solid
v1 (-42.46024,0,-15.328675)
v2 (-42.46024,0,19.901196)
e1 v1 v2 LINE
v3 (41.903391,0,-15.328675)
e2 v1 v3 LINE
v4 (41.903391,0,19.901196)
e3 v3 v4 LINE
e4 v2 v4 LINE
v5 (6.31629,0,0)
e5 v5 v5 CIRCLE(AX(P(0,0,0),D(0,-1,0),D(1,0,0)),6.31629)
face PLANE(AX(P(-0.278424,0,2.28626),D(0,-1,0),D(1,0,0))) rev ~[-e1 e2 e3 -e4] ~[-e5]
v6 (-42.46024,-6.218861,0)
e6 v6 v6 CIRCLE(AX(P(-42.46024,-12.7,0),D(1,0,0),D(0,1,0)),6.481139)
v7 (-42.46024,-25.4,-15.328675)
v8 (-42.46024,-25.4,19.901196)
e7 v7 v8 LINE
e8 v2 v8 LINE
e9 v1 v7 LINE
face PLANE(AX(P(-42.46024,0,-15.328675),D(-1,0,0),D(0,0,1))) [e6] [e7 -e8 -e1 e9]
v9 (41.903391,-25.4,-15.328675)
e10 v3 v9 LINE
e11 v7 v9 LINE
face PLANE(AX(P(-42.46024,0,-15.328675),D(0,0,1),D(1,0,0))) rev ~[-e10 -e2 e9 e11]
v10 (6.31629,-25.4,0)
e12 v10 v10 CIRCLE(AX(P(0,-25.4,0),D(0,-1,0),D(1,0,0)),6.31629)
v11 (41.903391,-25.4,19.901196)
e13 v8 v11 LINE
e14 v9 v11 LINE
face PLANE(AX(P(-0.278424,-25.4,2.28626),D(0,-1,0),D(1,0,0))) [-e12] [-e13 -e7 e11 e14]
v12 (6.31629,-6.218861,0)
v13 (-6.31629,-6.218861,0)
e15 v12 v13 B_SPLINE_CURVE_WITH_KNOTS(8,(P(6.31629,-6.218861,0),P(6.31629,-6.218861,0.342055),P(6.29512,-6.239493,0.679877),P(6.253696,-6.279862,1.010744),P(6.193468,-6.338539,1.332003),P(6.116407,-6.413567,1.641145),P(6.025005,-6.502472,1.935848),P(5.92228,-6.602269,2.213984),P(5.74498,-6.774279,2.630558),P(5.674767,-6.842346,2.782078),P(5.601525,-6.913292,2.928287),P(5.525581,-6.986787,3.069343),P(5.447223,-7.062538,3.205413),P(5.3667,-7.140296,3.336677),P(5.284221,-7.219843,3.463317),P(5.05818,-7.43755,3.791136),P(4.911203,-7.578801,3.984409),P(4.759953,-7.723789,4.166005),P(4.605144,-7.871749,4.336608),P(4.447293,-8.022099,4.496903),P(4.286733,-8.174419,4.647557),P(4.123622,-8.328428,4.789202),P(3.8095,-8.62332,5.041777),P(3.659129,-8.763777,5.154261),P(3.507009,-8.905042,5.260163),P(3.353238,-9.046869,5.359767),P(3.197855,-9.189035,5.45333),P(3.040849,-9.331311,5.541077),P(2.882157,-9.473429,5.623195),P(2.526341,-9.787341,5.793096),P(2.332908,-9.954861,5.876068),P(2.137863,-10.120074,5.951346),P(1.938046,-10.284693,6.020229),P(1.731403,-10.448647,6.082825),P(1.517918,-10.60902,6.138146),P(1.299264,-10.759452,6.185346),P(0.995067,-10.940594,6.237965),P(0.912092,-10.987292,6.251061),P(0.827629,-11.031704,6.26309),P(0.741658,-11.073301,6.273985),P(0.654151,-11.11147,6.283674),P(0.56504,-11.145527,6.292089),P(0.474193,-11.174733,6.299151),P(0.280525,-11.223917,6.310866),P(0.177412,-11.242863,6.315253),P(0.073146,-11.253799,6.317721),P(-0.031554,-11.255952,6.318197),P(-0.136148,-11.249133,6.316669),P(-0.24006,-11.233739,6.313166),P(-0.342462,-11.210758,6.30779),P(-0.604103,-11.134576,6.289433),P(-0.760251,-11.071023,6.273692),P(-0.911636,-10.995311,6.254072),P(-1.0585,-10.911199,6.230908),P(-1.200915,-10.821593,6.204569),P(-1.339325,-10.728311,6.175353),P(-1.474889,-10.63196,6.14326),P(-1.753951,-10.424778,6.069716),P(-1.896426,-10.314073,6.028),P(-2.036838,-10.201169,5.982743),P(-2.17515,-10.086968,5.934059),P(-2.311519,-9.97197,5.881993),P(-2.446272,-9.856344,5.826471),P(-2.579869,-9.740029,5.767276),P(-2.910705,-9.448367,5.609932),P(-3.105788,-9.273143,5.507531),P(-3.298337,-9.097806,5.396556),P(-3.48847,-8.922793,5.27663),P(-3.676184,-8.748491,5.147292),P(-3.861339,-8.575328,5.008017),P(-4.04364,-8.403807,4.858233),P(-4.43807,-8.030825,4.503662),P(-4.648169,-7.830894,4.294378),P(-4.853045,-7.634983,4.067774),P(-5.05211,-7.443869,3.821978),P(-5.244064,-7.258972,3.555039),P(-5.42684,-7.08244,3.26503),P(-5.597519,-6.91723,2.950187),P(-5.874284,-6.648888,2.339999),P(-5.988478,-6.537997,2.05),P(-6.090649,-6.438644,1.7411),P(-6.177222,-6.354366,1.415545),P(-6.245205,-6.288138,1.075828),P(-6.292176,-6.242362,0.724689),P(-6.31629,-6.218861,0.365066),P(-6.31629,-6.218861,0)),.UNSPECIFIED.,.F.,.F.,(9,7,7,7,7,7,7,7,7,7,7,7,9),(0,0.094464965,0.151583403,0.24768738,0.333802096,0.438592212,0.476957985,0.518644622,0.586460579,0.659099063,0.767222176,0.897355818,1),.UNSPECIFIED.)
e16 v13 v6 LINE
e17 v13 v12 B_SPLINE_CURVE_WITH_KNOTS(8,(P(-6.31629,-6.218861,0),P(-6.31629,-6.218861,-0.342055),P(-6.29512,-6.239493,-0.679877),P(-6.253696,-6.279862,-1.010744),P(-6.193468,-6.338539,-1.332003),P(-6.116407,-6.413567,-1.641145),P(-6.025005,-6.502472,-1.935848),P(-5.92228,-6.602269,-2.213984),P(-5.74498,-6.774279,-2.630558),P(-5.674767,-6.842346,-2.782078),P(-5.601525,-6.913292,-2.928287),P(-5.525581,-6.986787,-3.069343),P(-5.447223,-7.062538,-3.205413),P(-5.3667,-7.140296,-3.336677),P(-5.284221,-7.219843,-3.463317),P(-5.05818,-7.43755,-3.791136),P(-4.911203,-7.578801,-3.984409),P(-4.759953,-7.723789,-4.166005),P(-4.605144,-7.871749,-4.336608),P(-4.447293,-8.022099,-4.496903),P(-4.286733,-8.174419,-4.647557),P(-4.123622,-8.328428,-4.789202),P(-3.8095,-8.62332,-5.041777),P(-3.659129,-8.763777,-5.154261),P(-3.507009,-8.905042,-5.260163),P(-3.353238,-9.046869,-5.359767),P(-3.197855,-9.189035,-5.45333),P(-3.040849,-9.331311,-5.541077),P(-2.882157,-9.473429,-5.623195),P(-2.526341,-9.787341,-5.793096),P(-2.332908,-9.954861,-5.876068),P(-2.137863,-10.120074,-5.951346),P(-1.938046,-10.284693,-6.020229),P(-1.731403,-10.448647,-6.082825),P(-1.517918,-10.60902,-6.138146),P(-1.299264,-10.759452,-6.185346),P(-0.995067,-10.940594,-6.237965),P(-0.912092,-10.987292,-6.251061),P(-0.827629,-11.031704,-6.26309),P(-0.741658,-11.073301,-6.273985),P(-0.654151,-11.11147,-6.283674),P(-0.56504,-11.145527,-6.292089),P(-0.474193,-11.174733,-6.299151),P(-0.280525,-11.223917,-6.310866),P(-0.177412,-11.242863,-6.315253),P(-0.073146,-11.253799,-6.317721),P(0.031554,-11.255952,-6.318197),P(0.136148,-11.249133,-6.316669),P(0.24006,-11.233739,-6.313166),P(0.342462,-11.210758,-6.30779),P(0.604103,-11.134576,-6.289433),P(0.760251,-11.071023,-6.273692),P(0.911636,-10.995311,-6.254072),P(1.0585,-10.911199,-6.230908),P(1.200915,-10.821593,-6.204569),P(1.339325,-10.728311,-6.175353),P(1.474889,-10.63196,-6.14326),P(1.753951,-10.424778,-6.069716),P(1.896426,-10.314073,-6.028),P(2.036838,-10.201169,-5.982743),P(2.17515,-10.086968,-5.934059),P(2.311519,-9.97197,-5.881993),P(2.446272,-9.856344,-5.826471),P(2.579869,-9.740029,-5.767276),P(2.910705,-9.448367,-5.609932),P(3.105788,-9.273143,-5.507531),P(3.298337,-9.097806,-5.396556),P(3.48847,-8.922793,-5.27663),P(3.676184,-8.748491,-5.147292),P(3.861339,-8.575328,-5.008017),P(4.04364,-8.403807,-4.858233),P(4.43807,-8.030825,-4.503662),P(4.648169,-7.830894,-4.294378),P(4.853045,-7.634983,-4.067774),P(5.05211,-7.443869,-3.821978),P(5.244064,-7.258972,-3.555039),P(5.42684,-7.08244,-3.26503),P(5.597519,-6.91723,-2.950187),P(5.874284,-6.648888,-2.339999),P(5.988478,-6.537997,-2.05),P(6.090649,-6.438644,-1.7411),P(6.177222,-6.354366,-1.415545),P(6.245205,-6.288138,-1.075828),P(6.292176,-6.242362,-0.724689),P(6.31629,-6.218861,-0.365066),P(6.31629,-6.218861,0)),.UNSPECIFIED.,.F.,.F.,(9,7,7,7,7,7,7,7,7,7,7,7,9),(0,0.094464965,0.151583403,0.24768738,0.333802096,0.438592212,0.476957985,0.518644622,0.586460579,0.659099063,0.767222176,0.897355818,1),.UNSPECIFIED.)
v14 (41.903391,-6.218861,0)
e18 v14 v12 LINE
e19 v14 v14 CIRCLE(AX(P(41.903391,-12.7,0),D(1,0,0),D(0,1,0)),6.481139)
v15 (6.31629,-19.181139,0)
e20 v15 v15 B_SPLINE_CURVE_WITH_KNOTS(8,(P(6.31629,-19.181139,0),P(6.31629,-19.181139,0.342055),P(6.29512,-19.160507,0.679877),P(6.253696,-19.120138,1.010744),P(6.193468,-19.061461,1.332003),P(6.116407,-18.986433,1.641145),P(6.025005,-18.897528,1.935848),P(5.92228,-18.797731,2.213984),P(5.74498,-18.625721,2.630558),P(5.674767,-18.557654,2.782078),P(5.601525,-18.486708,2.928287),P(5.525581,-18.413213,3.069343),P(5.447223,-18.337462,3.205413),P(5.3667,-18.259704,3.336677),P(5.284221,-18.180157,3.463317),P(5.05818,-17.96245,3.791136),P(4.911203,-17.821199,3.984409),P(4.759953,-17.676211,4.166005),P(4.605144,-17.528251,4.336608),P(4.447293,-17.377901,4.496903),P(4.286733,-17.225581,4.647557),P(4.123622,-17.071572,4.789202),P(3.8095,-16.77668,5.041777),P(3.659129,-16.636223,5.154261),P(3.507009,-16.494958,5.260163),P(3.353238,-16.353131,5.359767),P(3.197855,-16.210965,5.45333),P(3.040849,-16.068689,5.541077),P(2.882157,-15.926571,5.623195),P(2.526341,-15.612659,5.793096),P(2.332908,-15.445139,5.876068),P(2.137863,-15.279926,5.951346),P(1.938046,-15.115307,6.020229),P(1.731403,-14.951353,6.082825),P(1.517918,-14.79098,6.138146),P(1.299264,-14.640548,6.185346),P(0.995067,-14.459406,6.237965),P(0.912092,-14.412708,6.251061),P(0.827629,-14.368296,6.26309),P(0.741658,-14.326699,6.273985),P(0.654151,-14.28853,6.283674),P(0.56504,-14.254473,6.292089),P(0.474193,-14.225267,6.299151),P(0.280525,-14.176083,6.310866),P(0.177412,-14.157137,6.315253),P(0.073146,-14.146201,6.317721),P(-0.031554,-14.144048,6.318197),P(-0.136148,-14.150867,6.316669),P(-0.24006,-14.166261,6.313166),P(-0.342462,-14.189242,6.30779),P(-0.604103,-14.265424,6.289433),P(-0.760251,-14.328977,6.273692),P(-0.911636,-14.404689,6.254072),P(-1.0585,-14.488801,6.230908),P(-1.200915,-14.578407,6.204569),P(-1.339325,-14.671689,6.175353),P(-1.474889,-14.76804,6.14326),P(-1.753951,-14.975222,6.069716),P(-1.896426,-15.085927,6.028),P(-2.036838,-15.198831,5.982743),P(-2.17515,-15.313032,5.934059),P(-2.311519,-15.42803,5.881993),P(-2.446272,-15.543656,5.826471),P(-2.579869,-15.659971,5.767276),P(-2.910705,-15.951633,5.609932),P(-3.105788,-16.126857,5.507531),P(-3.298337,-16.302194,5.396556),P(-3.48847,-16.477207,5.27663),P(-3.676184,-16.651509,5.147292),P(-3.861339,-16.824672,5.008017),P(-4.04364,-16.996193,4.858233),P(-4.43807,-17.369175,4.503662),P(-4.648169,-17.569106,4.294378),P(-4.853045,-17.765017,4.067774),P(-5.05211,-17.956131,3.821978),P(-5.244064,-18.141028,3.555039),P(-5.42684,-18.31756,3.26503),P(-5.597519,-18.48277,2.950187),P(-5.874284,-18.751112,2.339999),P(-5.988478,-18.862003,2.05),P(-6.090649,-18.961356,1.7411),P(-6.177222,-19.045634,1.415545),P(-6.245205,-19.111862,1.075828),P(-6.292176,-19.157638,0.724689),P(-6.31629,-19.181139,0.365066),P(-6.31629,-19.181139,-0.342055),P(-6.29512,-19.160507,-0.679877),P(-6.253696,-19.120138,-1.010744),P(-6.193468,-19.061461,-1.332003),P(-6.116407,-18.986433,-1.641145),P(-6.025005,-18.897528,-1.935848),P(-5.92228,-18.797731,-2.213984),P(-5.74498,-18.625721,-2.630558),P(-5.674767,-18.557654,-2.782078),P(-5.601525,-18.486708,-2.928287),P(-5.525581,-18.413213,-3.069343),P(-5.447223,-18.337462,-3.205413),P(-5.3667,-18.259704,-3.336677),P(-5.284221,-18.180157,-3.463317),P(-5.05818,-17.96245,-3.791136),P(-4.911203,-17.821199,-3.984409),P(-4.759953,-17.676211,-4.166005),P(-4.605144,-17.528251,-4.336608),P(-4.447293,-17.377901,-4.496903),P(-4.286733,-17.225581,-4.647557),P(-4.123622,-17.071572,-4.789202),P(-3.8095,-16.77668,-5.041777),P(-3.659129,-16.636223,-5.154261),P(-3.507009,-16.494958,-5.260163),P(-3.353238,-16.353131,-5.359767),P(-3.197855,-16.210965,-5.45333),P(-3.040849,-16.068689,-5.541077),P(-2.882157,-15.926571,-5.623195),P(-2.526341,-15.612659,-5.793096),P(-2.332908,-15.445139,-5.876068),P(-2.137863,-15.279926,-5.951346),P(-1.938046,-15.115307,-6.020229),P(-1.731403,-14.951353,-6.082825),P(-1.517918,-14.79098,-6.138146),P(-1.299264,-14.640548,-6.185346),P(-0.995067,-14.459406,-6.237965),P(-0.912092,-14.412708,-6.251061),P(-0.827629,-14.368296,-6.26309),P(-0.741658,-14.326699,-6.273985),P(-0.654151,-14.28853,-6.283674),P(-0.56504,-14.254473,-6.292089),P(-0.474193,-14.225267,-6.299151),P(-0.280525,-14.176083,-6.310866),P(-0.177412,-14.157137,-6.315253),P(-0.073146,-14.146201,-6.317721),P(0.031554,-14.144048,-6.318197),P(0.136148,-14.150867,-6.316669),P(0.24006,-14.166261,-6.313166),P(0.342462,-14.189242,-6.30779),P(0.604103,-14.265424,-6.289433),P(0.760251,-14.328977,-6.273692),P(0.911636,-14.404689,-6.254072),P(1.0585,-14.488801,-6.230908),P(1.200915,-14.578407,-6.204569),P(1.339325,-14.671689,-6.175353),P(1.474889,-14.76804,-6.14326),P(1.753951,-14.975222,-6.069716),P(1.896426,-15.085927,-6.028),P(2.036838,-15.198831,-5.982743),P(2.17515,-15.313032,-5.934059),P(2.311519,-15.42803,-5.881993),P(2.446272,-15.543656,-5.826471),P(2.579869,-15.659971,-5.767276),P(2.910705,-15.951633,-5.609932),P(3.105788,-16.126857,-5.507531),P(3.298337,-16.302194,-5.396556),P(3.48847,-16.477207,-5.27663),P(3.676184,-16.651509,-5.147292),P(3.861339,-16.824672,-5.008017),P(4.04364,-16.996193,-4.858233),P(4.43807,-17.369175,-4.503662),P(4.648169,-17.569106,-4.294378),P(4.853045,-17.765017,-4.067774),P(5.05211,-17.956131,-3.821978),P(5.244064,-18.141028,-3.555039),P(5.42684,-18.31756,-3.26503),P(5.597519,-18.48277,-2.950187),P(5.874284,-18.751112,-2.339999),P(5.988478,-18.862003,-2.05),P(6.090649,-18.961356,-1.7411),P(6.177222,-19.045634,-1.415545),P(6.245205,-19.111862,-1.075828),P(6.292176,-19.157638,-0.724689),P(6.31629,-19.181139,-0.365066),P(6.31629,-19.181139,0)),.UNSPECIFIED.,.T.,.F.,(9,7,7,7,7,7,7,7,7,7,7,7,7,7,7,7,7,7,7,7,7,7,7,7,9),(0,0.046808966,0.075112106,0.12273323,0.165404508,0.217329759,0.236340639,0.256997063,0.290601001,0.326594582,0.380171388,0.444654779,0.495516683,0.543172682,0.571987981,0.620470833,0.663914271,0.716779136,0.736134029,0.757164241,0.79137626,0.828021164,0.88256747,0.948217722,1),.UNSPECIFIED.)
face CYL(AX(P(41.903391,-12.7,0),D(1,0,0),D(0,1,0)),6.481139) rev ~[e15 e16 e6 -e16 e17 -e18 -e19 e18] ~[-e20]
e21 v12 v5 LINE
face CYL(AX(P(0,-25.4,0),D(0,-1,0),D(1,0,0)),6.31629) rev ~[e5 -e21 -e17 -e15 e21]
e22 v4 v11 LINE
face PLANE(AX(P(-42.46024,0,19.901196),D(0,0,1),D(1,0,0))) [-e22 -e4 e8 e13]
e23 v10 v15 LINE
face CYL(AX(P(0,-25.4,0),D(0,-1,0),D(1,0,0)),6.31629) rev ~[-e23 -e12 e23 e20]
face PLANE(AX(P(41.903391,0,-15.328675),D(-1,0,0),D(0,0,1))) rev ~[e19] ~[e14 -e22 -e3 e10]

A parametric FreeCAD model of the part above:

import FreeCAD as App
import Part
import Sketcher

V = App.Vector
Q = App.Units.Quantity

doc = App.newDocument("Part")
params = doc.addObject("Spreadsheet::Sheet", "Params")
for row, (alias, value) in enumerate([
    ("pad1_length", "1 in"),
], start=1):
    params.set(f"A{row}", alias)
    params.set(f"B{row}", "=" + value)
    params.setAlias(f"B{row}", alias)

body = doc.addObject("PartDesign::Body", "Body")

sketch1 = body.newObject("Sketcher::SketchObject", "Sketch")
sketch1.AttachmentSupport = (doc.getObject("XZ_Plane"), [""])
sketch1.MapMode = "FlatFace"
sketch1.addGeometry([
    Part.LineSegment(V(-42, 20, 0), V(-42, -15, 0)),
    Part.LineSegment(V(-42, -15, 0), V(42, -15, 0)),
    Part.LineSegment(V(42, -15, 0), V(42, 20, 0)),
    Part.LineSegment(V(42, 20, 0), V(-42, 20, 0)),
], False)
sketch1.addConstraint([
    Sketcher.Constraint("Coincident", 0, 2, 1, 1),
    Sketcher.Constraint("Coincident", 1, 2, 2, 1),
    Sketcher.Constraint("Coincident", 2, 2, 3, 1),
    Sketcher.Constraint("Coincident", 3, 2, 0, 1),
    Sketcher.Constraint("Vertical", 0),
    Sketcher.Constraint("Horizontal", 1),
    Sketcher.Constraint("Vertical", 2),
    Sketcher.Constraint("Horizontal", 3),
    Sketcher.Constraint("DistanceX", 1, 1, 1, 2, Q("84.363632 mm")),
    Sketcher.Constraint("DistanceY", 0, 2, 0, 1, Q("35.22987 mm")),
    Sketcher.Constraint("DistanceX", 0, 2, -1, 1, Q("42.46024 mm")),
    Sketcher.Constraint("DistanceY", 0, 2, -1, 1, Q("15.328675 mm")),
])
pad1 = body.newObject("PartDesign::Pad", "Pad")
pad1.Profile = sketch1
pad1.setExpression("Length", "Params.pad1_length")

sketch2 = body.newObject("Sketcher::SketchObject", "Sketch001")
sketch2.AttachmentSupport = (doc.getObject("XZ_Plane"), [""])
sketch2.MapMode = "FlatFace"
sketch2.AttachmentOffset = App.Placement(V(0, 0, 1 * 25.4), App.Rotation())
sketch2.addGeometry(Part.Circle(V(0, 0, 0), V(0, 0, 1), 6), False)
sketch2.addConstraint([
    Sketcher.Constraint("Coincident", 0, 3, -1, 1),
    Sketcher.Constraint("Diameter", 0, Q("12.63258 mm")),
])
pocket1 = body.newObject("PartDesign::Pocket", "Pocket")
pocket1.Profile = sketch2
pocket1.Type = "ThroughAll"

sketch3 = body.newObject("Sketcher::SketchObject", "Sketch002")
sketch3.AttachmentSupport = (doc.getObject("YZ_Plane"), [""])
sketch3.MapMode = "FlatFace"
sketch3.AttachmentOffset = App.Placement(V(0, 0, 41.903391), App.Rotation())
sketch3.addGeometry(Part.Circle(V(-13, 0, 0), V(0, 0, 1), 6), False)
sketch3.addConstraint([
    Sketcher.Constraint("PointOnObject", 0, 3, -1),
    Sketcher.Constraint("DistanceX", 0, 3, -1, 1, Q("0.5 in")),
    Sketcher.Constraint("Diameter", 0, Q("12.962278 mm")),
])
pocket2 = body.newObject("PartDesign::Pocket", "Pocket001")
pocket2.Profile = sketch3
pocket2.Type = "ThroughAll"

doc.recompute()
